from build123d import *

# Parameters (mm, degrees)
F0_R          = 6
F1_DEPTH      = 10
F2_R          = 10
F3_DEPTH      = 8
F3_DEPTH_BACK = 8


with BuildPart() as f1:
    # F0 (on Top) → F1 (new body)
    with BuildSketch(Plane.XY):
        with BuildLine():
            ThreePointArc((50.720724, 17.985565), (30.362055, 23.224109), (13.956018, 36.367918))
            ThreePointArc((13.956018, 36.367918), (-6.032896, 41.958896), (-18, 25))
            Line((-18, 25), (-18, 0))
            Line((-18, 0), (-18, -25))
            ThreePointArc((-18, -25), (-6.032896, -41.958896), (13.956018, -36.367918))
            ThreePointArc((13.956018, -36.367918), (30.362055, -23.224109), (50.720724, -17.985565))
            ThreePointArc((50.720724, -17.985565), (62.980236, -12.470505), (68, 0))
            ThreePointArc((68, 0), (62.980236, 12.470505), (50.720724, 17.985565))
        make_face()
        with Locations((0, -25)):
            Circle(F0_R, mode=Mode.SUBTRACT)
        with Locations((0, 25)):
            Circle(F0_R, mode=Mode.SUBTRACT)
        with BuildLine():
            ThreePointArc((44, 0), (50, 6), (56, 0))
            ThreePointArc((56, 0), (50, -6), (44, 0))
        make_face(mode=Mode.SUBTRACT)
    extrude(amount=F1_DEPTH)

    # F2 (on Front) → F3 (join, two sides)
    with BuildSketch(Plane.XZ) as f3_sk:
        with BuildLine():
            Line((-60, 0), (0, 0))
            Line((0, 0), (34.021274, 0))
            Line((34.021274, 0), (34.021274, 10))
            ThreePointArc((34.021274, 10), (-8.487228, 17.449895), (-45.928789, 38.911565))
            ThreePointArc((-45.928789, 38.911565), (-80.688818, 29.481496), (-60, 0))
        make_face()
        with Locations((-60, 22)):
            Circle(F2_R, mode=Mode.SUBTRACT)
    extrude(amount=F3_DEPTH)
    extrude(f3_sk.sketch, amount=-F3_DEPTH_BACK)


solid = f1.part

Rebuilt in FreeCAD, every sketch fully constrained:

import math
import FreeCAD as App
import Part
import Sketcher

V = App.Vector

doc = App.newDocument("Part")
body = doc.addObject("PartDesign::Body", "Body")

sketch1 = body.newObject("Sketcher::SketchObject", "Sketch")
sketch1.AttachmentSupport = (doc.getObject("XY_Plane"), [""])
sketch1.MapMode = "FlatFace"
sketch1.addGeometry([
    Part.ArcOfCircle(Part.Circle(V(53, 68, 0), V(0, 0, 1), 50), math.radians(-141), math.radians(-92)),
    Part.ArcOfCircle(Part.Circle(V(0, 25, 0), V(0, 0, 1), 18), math.radians(39), math.radians(180)),
    Part.LineSegment(V(-18, 25, 0), V(-18, -25, 0)),
    Part.ArcOfCircle(Part.Circle(V(0, -25, 0), V(0, 0, 1), 18), math.radians(-180), math.radians(-39)),
    Part.ArcOfCircle(Part.Circle(V(53, -68, 0), V(0, 0, 1), 50), math.radians(92), math.radians(141)),
    Part.ArcOfCircle(Part.Circle(V(50, 0, 0), V(0, 0, 1), 18), math.radians(-88), math.radians(0)),
    Part.ArcOfCircle(Part.Circle(V(50, 0, 0), V(0, 0, 1), 18), math.radians(0), math.radians(88)),
    Part.Circle(V(0, -25, 0), V(0, 0, 1), 6),
    Part.Circle(V(0, 25, 0), V(0, 0, 1), 6),
    Part.Circle(V(50, 0, 0), V(0, 0, 1), 6),
], False)
sketch1.addConstraint([
    Sketcher.Constraint("Tangent", 0, 1, 1, 1),
    Sketcher.Constraint("Tangent", 1, 2, 2, 1),
    Sketcher.Constraint("Tangent", 2, 2, 3, 1),
    Sketcher.Constraint("Tangent", 3, 2, 4, 2),
    Sketcher.Constraint("Tangent", 4, 1, 5, 1),
    Sketcher.Constraint("Tangent", 5, 2, 6, 1),
    Sketcher.Constraint("Tangent", 6, 2, 0, 2),
    Sketcher.Constraint("Vertical", 2),
    Sketcher.Constraint("Coincident", 7, 3, 3, 3),
    Sketcher.Constraint("Coincident", 8, 3, 1, 3),
    Sketcher.Constraint("Coincident", 9, 3, 5, 3),
    Sketcher.Constraint("Equal", 1, 3),
    Sketcher.Constraint("Equal", 0, 4),
    Sketcher.Constraint("Equal", 5, 6),
    Sketcher.Constraint("Equal", 7, 8),
    Sketcher.Constraint("Equal", 8, 9),
    Sketcher.Constraint("Symmetric", 1, 3, 3, 3, -1, 1),
    Sketcher.Constraint("PointOnObject", 5, 3, -1),
    Sketcher.Constraint("PointOnObject", 5, 2, -1),
    Sketcher.Constraint("Diameter", 7, 12.0),
    Sketcher.Constraint("Radius", 1, 18.0),
    Sketcher.Constraint("Radius", 5, 17.999998),
    Sketcher.Constraint("DistanceY", 2, 2, 2, 1, 50.0),
    Sketcher.Constraint("DistanceX", -1, 1, 5, 3, 50.000002),
    Sketcher.Constraint("Radius", 0, 50.000002),
])
pad1 = body.newObject("PartDesign::Pad", "Pad")
pad1.Profile = sketch1
pad1.Length = 10

sketch2 = body.newObject("Sketcher::SketchObject", "Sketch001")
sketch2.AttachmentSupport = (doc.getObject("XZ_Plane"), [""])
sketch2.MapMode = "FlatFace"
sketch2.addGeometry([
    Part.LineSegment(V(-60, 0, 0), V(34, 0, 0)),
    Part.LineSegment(V(34, 0, 0), V(34, 10, 0)),
    Part.ArcOfCircle(Part.Circle(V(34, 135, 0), V(0, 0, 1), 125), math.radians(-130), math.radians(-90)),
    Part.ArcOfCircle(Part.Circle(V(-60, 22, 0), V(0, 0, 1), 22), math.radians(50), math.radians(270)),
    Part.Circle(V(-60, 22, 0), V(0, 0, 1), 10),
], False)
sketch2.addConstraint([
    Sketcher.Constraint("Coincident", 0, 2, 1, 1),
    Sketcher.Constraint("Coincident", 1, 2, 2, 2),
    Sketcher.Constraint("Tangent", 2, 1, 3, 1),
    Sketcher.Constraint("Tangent", 3, 2, 0, 1),
    Sketcher.Constraint("Horizontal", 0),
    Sketcher.Constraint("Vertical", 1),
    Sketcher.Constraint("Coincident", 4, 3, 3, 3),
    Sketcher.Constraint("PointOnObject", 0, 2, -1),
    Sketcher.Constraint("Vertical", 2, 3, 0, 2),
    Sketcher.Constraint("Diameter", 4, 20.0),
    Sketcher.Constraint("Radius", 2, 125.000002),
    Sketcher.Constraint("Radius", 3, 22.0),
    Sketcher.Constraint("DistanceY", 1, 1, 1, 2, 10.0),
    Sketcher.Constraint("DistanceX", 3, 3, -1, 1, 59.999999),
])
pad2 = body.newObject("PartDesign::Pad", "Pad001")
pad2.Profile = sketch2
pad2.Type = "TwoLengths"
pad2.Length = 8
pad2.Length2 = 8

doc.recompute()
